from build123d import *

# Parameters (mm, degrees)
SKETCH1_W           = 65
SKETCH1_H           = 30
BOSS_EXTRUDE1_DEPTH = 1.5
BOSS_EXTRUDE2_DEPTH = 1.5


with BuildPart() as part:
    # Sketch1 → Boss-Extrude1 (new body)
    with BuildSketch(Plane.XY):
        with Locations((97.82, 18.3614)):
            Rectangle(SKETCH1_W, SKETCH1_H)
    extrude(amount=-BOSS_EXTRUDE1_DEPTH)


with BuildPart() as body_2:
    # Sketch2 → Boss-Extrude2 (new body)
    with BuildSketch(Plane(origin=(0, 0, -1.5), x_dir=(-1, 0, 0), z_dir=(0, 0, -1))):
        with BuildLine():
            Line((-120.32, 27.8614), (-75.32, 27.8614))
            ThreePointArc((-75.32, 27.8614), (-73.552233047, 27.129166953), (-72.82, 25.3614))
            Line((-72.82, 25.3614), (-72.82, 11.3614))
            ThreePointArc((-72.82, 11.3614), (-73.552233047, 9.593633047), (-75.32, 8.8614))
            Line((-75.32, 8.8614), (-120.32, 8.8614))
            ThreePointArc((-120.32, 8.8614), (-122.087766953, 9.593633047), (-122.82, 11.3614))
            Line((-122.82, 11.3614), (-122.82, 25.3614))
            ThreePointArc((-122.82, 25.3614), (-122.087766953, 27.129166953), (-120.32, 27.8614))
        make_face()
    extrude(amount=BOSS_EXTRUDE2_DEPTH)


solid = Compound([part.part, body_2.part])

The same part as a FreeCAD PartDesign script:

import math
import FreeCAD as App
import Part
import Sketcher
from FreeCAD import Vector


def add_polygon(sketch, points):
    """Adds a closed chain of lines whose ends are joined by coincident constraints."""
    first, n = sketch.GeometryCount, len(points)
    for a, b in zip(points, points[1:] + points[:1]):
        sketch.addGeometry(Part.LineSegment(App.Vector(*a, 0), App.Vector(*b, 0)), False)
    for i in range(n):
        sketch.addConstraint(Sketcher.Constraint("Coincident", first + i, 2, first + (i + 1) % n, 1))

doc = App.newDocument("Part")
body = doc.addObject("PartDesign::Body", "Body")

sketch1 = doc.addObject("Sketcher::SketchObject", "Sketch")
body.addObject(sketch1)
sketch1.AttachmentSupport = (doc.XY_Plane, [""])
sketch1.MapMode = "FlatFace"
add_polygon(sketch1, [(65, 33), (65, 3), (130, 3), (130, 33)])
sketch1.addConstraint(Sketcher.Constraint("Vertical", 0))
sketch1.addConstraint(Sketcher.Constraint("Horizontal", 1))
sketch1.addConstraint(Sketcher.Constraint("Vertical", 2))
sketch1.addConstraint(Sketcher.Constraint("Horizontal", 3))
sketch1.addConstraint(Sketcher.Constraint("DistanceX", 1, 1, 1, 2, 65.0))
sketch1.addConstraint(Sketcher.Constraint("DistanceY", 0, 2, 0, 1, 30.0))
sketch1.addConstraint(Sketcher.Constraint("DistanceX", -1, 1, 0, 2, 65.32))
sketch1.addConstraint(Sketcher.Constraint("DistanceY", -1, 1, 0, 2, 3.3614))
pad1 = doc.addObject("PartDesign::Pad", "Pad")
body.addObject(pad1)
pad1.Profile = sketch1
pad1.Length = 1.5
pad1.Reversed = True
body2 = doc.addObject("PartDesign::Body", "Body001")

sketch2 = doc.addObject("Sketcher::SketchObject", "Sketch001")
body2.addObject(sketch2)
sketch2.AttachmentSupport = (doc.getObject("XY_Plane001"), [""])
sketch2.MapMode = "FlatFace"
sketch2.AttachmentOffset = App.Placement(Vector(0, 0, -1.5), App.Rotation())
sketch2.addGeometry(Part.LineSegment(Vector(75.3, 27.9, 0), Vector(120.3, 27.9, 0)), False)
sketch2.addGeometry(Part.ArcOfCircle(Part.Circle(Vector(120.3, 25.4, 0), Vector(0, 0, 1), 2.5), math.radians(0), math.radians(90)), False)
sketch2.addGeometry(Part.LineSegment(Vector(122.8, 25.4, 0), Vector(122.8, 11.4, 0)), False)
sketch2.addGeometry(Part.ArcOfCircle(Part.Circle(Vector(120.3, 11.4, 0), Vector(0, 0, 1), 2.5), math.radians(-90), math.radians(0)), False)
sketch2.addGeometry(Part.LineSegment(Vector(120.3, 8.9, 0), Vector(75.3, 8.9, 0)), False)
sketch2.addGeometry(Part.ArcOfCircle(Part.Circle(Vector(75.3, 11.4, 0), Vector(0, 0, 1), 2.5), math.radians(180), math.radians(270)), False)
sketch2.addGeometry(Part.LineSegment(Vector(72.8, 11.4, 0), Vector(72.8, 25.4, 0)), False)
sketch2.addGeometry(Part.ArcOfCircle(Part.Circle(Vector(75.3, 25.4, 0), Vector(0, 0, 1), 2.5), math.radians(90), math.radians(180)), False)
sketch2.addConstraint(Sketcher.Constraint("Tangent", 0, 2, 1, 2))
sketch2.addConstraint(Sketcher.Constraint("Tangent", 1, 1, 2, 1))
sketch2.addConstraint(Sketcher.Constraint("Tangent", 2, 2, 3, 2))
sketch2.addConstraint(Sketcher.Constraint("Tangent", 3, 1, 4, 1))
sketch2.addConstraint(Sketcher.Constraint("Tangent", 4, 2, 5, 2))
sketch2.addConstraint(Sketcher.Constraint("Tangent", 5, 1, 6, 1))
sketch2.addConstraint(Sketcher.Constraint("Tangent", 6, 2, 7, 2))
sketch2.addConstraint(Sketcher.Constraint("Tangent", 7, 1, 0, 1))
sketch2.addConstraint(Sketcher.Constraint("Horizontal", 0))
sketch2.addConstraint(Sketcher.Constraint("Vertical", 2))
sketch2.addConstraint(Sketcher.Constraint("Horizontal", 4))
sketch2.addConstraint(Sketcher.Constraint("Vertical", 6))
sketch2.addConstraint(Sketcher.Constraint("Equal", 1, 3))
sketch2.addConstraint(Sketcher.Constraint("Equal", 3, 5))
sketch2.addConstraint(Sketcher.Constraint("Equal", 5, 7))
sketch2.addConstraint(Sketcher.Constraint("Radius", 1, 2.5))
sketch2.addConstraint(Sketcher.Constraint("DistanceX", 0, 1, 0, 2, 45.0))
sketch2.addConstraint(Sketcher.Constraint("DistanceY", 2, 2, 2, 1, 14.0))
sketch2.addConstraint(Sketcher.Constraint("DistanceX", -1, 1, 1, 3, 120.32))
sketch2.addConstraint(Sketcher.Constraint("DistanceY", -1, 1, 1, 3, 25.3614))
pad2 = doc.addObject("PartDesign::Pad", "Pad001")
body2.addObject(pad2)
pad2.Profile = sketch2
pad2.Length = 1.5
pad2.Reversed = True

doc.recompute()
